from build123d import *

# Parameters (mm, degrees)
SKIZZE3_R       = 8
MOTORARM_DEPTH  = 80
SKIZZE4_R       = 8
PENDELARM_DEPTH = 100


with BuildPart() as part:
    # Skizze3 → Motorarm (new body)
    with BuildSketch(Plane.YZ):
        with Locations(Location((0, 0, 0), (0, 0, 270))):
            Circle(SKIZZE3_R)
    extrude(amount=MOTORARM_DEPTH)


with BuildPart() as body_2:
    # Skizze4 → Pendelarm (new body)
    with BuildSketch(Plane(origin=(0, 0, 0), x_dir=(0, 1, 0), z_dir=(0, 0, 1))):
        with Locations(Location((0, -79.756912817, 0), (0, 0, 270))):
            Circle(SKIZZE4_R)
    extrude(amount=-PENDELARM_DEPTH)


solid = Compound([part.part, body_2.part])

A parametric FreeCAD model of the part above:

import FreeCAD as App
import Part
import Sketcher
from FreeCAD import Vector
Q = App.Units.Quantity

doc = App.newDocument("Part")
params = doc.addObject("Spreadsheet::Sheet", "Params")
for row, (alias, value) in enumerate([
    ("sketch1_diameter", "16 mm"),
    ("pad1_length", "80 mm"),
    ("sketch2_diameter", "16 mm"),
    ("pad2_length", "100 mm"),
], start=1):
    params.set(f"A{row}", alias)
    params.set(f"B{row}", "=" + value)
    params.setAlias(f"B{row}", alias)

body = doc.addObject("PartDesign::Body", "Body")

# Sketch on YZ plane
sketch1 = body.newObject("Sketcher::SketchObject", "Sketch")
sketch1.AttachmentSupport = (doc.getObject("YZ_Plane"), [""])
sketch1.MapMode = "FlatFace"
sketch1.addGeometry(Part.Circle(Vector(0, 0, 0), Vector(0, 0, 1), 8), False)
sketch1.addConstraint(Sketcher.Constraint("Coincident", 0, 3, -1, 1))
sketch1.addConstraint(Sketcher.Constraint("Diameter", 0, Q("16 mm")))
sketch1.setExpression("Constraints[1]", "Params.sketch1_diameter")
pad1 = body.newObject("PartDesign::Pad", "Pad")
pad1.Profile = sketch1
pad1.setExpression("Length", "Params.pad1_length")
body2 = doc.addObject("PartDesign::Body", "Body001")

# Sketch on XY plane
sketch2 = body2.newObject("Sketcher::SketchObject", "Sketch001")
sketch2.AttachmentSupport = (doc.getObject("XY_Plane001"), [""])
sketch2.MapMode = "FlatFace"
sketch2.addGeometry(Part.Circle(Vector(80, 0, 0), Vector(0, 0, 1), 8), False)
sketch2.addConstraint(Sketcher.Constraint("PointOnObject", 0, 3, -1))
sketch2.addConstraint(Sketcher.Constraint("Diameter", 0, Q("16 mm")))
sketch2.addConstraint(Sketcher.Constraint("DistanceX", -1, 1, 0, 3, Q("79.756913 mm")))
sketch2.setExpression("Constraints[1]", "Params.sketch2_diameter")
pad2 = body2.newObject("PartDesign::Pad", "Pad001")
pad2.Profile = sketch2
pad2.setExpression("Length", "Params.pad2_length")
pad2.Reversed = True

doc.recompute()
